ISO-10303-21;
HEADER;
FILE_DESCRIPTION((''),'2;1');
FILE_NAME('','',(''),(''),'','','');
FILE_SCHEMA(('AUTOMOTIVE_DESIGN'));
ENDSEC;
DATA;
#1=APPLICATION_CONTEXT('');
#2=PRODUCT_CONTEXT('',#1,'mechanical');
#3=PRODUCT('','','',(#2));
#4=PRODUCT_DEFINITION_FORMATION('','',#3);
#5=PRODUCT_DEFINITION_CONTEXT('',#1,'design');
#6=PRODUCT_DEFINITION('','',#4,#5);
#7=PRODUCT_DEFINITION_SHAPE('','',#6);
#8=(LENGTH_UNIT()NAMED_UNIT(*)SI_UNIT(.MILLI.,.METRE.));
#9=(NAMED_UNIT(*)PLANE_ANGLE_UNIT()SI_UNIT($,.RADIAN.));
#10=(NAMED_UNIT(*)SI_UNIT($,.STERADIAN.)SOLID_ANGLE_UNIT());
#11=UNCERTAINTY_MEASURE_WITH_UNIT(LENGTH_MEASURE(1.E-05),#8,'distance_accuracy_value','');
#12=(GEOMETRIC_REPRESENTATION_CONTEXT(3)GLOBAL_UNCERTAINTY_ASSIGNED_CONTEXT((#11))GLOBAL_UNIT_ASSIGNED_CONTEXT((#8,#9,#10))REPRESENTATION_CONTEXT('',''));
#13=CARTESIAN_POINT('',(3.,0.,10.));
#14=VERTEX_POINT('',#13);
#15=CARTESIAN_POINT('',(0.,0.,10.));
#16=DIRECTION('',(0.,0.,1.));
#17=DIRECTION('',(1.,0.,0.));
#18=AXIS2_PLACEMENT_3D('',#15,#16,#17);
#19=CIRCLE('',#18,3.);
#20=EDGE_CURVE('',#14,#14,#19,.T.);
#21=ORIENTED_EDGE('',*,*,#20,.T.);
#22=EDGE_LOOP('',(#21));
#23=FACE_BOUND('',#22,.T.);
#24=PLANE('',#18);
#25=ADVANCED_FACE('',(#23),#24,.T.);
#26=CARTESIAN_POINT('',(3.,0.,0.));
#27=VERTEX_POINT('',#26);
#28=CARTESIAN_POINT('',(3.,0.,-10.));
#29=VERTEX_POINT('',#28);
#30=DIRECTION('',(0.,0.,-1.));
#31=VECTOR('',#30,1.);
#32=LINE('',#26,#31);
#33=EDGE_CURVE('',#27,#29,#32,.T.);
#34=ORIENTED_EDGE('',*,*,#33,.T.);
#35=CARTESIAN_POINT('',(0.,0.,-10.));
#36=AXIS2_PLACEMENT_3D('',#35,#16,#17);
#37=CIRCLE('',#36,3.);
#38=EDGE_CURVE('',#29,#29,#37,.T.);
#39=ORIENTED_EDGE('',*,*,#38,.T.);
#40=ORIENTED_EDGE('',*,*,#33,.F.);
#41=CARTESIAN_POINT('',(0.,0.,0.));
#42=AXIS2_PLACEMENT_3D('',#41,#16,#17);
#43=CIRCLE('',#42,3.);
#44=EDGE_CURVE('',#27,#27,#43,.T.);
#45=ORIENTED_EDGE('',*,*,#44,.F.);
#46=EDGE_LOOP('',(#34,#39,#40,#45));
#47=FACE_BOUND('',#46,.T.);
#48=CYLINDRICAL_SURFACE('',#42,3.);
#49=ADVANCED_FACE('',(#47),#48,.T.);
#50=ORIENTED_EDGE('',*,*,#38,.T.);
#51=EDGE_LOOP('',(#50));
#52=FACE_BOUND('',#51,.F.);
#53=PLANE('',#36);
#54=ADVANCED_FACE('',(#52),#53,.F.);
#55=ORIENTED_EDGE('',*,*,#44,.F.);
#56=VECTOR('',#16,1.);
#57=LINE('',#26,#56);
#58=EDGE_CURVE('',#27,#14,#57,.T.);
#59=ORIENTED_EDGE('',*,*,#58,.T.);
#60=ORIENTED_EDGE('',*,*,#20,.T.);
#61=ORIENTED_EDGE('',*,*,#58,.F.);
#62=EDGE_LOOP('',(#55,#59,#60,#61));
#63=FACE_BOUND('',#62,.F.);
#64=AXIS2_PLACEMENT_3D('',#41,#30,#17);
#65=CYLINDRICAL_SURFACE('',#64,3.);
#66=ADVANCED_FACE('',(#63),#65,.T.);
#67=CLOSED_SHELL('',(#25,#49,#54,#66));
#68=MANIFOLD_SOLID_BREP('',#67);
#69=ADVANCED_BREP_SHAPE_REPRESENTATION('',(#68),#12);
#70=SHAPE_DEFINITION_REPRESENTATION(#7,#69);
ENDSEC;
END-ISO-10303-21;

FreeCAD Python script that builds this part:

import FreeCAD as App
import Part
import Sketcher
Q = App.Units.Quantity

doc = App.newDocument("Part")
body = doc.addObject("PartDesign::Body", "Body")

# Sketch on XY plane
sketch1 = doc.addObject("Sketcher::SketchObject", "Sketch")
body.addObject(sketch1)
sketch1.AttachmentSupport = (doc.XY_Plane, [""])
sketch1.MapMode = "FlatFace"
sketch1.addGeometry(Part.Circle(App.Vector(0, 0, 0), App.Vector(0, 0, 1), 3), False)
sketch1.addConstraint([
    Sketcher.Constraint("Coincident", 0, 3, -1, 1),
    Sketcher.Constraint("Diameter", 0, Q("6 mm")),
])
pad1 = doc.addObject("PartDesign::Pad", "Pad")
body.addObject(pad1)
pad1.Profile = sketch1
pad1.Length = 20
pad1.Midplane = True

doc.recompute()
